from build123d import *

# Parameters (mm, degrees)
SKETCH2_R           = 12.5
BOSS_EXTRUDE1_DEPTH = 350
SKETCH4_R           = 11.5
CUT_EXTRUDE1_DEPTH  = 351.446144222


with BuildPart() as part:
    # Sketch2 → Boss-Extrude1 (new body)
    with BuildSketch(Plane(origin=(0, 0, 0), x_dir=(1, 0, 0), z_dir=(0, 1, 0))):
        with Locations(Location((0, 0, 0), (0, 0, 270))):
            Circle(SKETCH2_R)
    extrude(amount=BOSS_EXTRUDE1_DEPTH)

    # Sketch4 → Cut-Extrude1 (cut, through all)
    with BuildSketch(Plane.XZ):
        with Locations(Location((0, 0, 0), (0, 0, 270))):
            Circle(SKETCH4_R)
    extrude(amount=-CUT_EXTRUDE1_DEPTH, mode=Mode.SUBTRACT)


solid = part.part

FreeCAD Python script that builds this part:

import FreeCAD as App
import Part
import Sketcher

doc = App.newDocument("Part")
body = doc.addObject("PartDesign::Body", "Body")

# Sketch on XZ plane
sketch1 = body.newObject("Sketcher::SketchObject", "Sketch")
sketch1.AttachmentSupport = (doc.getObject("XZ_Plane"), [""])
sketch1.MapMode = "FlatFace"
sketch1.addGeometry(Part.Circle(App.Vector(0, 0, 0), App.Vector(0, 0, 1), 12.5), False)
sketch1.addConstraint([
    Sketcher.Constraint("Coincident", 0, 3, -1, 1),
    Sketcher.Constraint("Diameter", 0, 25.0),
])
pad1 = body.newObject("PartDesign::Pad", "Pad")
pad1.Profile = sketch1
pad1.Length = 350
pad1.Reversed = True

# Sketch on XZ plane
sketch2 = body.newObject("Sketcher::SketchObject", "Sketch001")
sketch2.AttachmentSupport = (doc.getObject("XZ_Plane"), [""])
sketch2.MapMode = "FlatFace"
sketch2.addGeometry(Part.Circle(App.Vector(0, 0, 0), App.Vector(0, 0, 1), 11.5), False)
sketch2.addConstraint([
    Sketcher.Constraint("Coincident", 0, 3, -1, 1),
    Sketcher.Constraint("Diameter", 0, 23.0),
])
pocket1 = body.newObject("PartDesign::Pocket", "Pocket")
pocket1.Profile = sketch2
pocket1.Type = "ThroughAll"

doc.recompute()
